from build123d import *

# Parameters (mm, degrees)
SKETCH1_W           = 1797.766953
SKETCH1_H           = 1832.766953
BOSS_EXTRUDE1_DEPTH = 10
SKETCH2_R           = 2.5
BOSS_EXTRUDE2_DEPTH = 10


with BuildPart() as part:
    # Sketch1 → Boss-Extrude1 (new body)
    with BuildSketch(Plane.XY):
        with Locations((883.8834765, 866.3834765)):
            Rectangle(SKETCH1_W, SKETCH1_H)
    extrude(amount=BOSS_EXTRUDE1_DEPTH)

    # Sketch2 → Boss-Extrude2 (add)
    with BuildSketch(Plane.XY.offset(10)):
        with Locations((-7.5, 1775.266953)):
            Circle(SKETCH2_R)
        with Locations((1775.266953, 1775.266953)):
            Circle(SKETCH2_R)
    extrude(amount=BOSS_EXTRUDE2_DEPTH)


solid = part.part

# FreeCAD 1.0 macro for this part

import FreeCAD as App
import Part
import Sketcher
Q = App.Units.Quantity

doc = App.newDocument("Part")
body = doc.addObject("PartDesign::Body", "Body")

sketch1 = body.newObject("Sketcher::SketchObject", "Sketch")
sketch1.AttachmentSupport = (doc.getObject("XY_Plane"), [""])
sketch1.MapMode = "FlatFace"
sketch1.addGeometry(Part.LineSegment(App.Vector(-15, 1783, 0), App.Vector(-15, -50, 0)), False)
sketch1.addGeometry(Part.LineSegment(App.Vector(-15, -50, 0), App.Vector(1783, -50, 0)), False)
sketch1.addGeometry(Part.LineSegment(App.Vector(1783, -50, 0), App.Vector(1783, 1783, 0)), False)
sketch1.addGeometry(Part.LineSegment(App.Vector(1783, 1783, 0), App.Vector(-15, 1783, 0)), False)
sketch1.addConstraint(Sketcher.Constraint("Coincident", 0, 2, 1, 1))
sketch1.addConstraint(Sketcher.Constraint("Coincident", 1, 2, 2, 1))
sketch1.addConstraint(Sketcher.Constraint("Coincident", 2, 2, 3, 1))
sketch1.addConstraint(Sketcher.Constraint("Coincident", 3, 2, 0, 1))
sketch1.addConstraint(Sketcher.Constraint("Vertical", 0))
sketch1.addConstraint(Sketcher.Constraint("Horizontal", 1))
sketch1.addConstraint(Sketcher.Constraint("Vertical", 2))
sketch1.addConstraint(Sketcher.Constraint("Horizontal", 3))
sketch1.addConstraint(Sketcher.Constraint("DistanceX", 0, 2, -1, 1, Q("15 mm")))
sketch1.addConstraint(Sketcher.Constraint("DistanceY", 0, 2, -1, 1, Q("50 mm")))
sketch1.addConstraint(Sketcher.Constraint("DistanceX", 1, 1, 1, 2, Q("1797.766953 mm")))
sketch1.addConstraint(Sketcher.Constraint("DistanceY", 0, 2, 0, 1, Q("1832.766953 mm")))
pad1 = body.newObject("PartDesign::Pad", "Pad")
pad1.Profile = sketch1
pad1.Length = 10

sketch2 = body.newObject("Sketcher::SketchObject", "Sketch001")
sketch2.AttachmentSupport = (doc.getObject("XY_Plane"), [""])
sketch2.MapMode = "FlatFace"
sketch2.AttachmentOffset = App.Placement(App.Vector(0, 0, 10), App.Rotation())
sketch2.addGeometry(Part.Circle(App.Vector(-7.5, 1775.3, 0), App.Vector(0, 0, 1), 2.5), False)
sketch2.addGeometry(Part.Circle(App.Vector(1775.3, 1775.3, 0), App.Vector(0, 0, 1), 2.5), False)
sketch2.addConstraint(Sketcher.Constraint("Equal", 0, 1))
sketch2.addConstraint(Sketcher.Constraint("Horizontal", 0, 3, 1, 3))
sketch2.addConstraint(Sketcher.Constraint("Diameter", 0, Q("5 mm")))
sketch2.addConstraint(Sketcher.Constraint("DistanceX", 0, 3, -1, 1, Q("7.5 mm")))
sketch2.addConstraint(Sketcher.Constraint("DistanceY", -1, 1, 0, 3, Q("1775.266953 mm")))
sketch2.addConstraint(Sketcher.Constraint("DistanceX", -1, 1, 1, 3, Q("1775.266953 mm")))
pad2 = body.newObject("PartDesign::Pad", "Pad001")
pad2.Profile = sketch2
pad2.Length = 10

doc.recompute()
